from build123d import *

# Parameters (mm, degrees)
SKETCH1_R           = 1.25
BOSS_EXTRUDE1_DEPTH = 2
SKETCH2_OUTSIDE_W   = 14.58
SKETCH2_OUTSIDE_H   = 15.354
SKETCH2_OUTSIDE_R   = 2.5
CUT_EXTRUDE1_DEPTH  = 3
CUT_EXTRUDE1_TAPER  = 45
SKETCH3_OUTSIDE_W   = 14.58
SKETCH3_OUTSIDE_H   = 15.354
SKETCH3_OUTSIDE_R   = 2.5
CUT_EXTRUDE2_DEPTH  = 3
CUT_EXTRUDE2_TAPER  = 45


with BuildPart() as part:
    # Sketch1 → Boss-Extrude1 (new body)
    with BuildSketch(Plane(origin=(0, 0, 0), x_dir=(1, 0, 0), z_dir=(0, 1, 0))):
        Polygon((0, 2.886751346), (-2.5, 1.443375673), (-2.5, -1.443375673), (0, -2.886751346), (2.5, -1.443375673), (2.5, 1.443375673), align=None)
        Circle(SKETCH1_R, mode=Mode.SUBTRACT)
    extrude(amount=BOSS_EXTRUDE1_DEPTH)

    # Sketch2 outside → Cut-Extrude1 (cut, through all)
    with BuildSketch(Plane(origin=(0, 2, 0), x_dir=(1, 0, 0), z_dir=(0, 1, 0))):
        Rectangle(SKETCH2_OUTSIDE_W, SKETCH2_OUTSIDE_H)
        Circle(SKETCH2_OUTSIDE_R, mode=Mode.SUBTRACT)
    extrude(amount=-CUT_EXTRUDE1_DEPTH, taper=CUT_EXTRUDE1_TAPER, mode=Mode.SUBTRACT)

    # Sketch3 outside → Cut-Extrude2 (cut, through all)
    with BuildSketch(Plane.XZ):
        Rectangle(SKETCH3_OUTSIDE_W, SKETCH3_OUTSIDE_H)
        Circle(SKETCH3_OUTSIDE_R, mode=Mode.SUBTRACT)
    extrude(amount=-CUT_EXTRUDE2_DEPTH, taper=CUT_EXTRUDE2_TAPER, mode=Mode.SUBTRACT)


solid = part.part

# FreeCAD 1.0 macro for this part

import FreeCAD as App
import Part
import Sketcher
from FreeCAD import Vector
Q = App.Units.Quantity

doc = App.newDocument("Part")
body = doc.addObject("PartDesign::Body", "Body")

sketch1 = doc.addObject("Sketcher::SketchObject", "Sketch")
body.addObject(sketch1)
sketch1.AttachmentSupport = (doc.XZ_Plane, [""])
sketch1.MapMode = "FlatFace"
sketch1.addGeometry(Part.LineSegment(Vector(0, -2.9, 0), Vector(-2.5, -1.4, 0)), False)
sketch1.addGeometry(Part.LineSegment(Vector(-2.5, -1.4, 0), Vector(-2.5, 1.4, 0)), False)
sketch1.addGeometry(Part.LineSegment(Vector(-2.5, 1.4, 0), Vector(0, 2.9, 0)), False)
sketch1.addGeometry(Part.LineSegment(Vector(0, 2.9, 0), Vector(2.5, 1.4, 0)), False)
sketch1.addGeometry(Part.LineSegment(Vector(2.5, 1.4, 0), Vector(2.5, -1.4, 0)), False)
sketch1.addGeometry(Part.LineSegment(Vector(2.5, -1.4, 0), Vector(0, -2.9, 0)), False)
sketch1.addGeometry(Part.Circle(Vector(0, 0, 0), Vector(0, 0, 1), 1.2), False)
sketch1.addConstraint(Sketcher.Constraint("Coincident", 0, 2, 1, 1))
sketch1.addConstraint(Sketcher.Constraint("Coincident", 1, 2, 2, 1))
sketch1.addConstraint(Sketcher.Constraint("Coincident", 2, 2, 3, 1))
sketch1.addConstraint(Sketcher.Constraint("Coincident", 3, 2, 4, 1))
sketch1.addConstraint(Sketcher.Constraint("Coincident", 4, 2, 5, 1))
sketch1.addConstraint(Sketcher.Constraint("Coincident", 5, 2, 0, 1))
sketch1.addConstraint(Sketcher.Constraint("Vertical", 1))
sketch1.addConstraint(Sketcher.Constraint("Vertical", 4))
sketch1.addConstraint(Sketcher.Constraint("Coincident", 6, 3, -1, 1))
sketch1.addConstraint(Sketcher.Constraint("Symmetric", 0, 2, 3, 2, -1, 1))
sketch1.addConstraint(Sketcher.Constraint("Symmetric", 2, 2, 5, 2, -1, 1))
sketch1.addConstraint(Sketcher.Constraint("PointOnObject", 2, 2, -2))
sketch1.addConstraint(Sketcher.Constraint("Parallel", 2, 5))
sketch1.addConstraint(Sketcher.Constraint("Horizontal", 1, 2, 3, 2))
sketch1.addConstraint(Sketcher.Constraint("Diameter", 6, Q("2.5 mm")))
sketch1.addConstraint(Sketcher.Constraint("Angle", 0, Q("150 deg")))
sketch1.addConstraint(Sketcher.Constraint("DistanceX", 1, 2, 3, 2, Q("5 mm")))
sketch1.addConstraint(Sketcher.Constraint("DistanceY", 1, 1, 1, 2, Q("2.886751 mm")))
pad1 = doc.addObject("PartDesign::Pad", "Pad")
body.addObject(pad1)
pad1.Profile = sketch1
pad1.Length = 2
pad1.Reversed = True

sketch2 = doc.addObject("Sketcher::SketchObject", "Sketch001")
body.addObject(sketch2)
sketch2.AttachmentSupport = (doc.XZ_Plane, [""])
sketch2.MapMode = "FlatFace"
sketch2.AttachmentOffset = App.Placement(Vector(0, 0, -2), App.Rotation())
sketch2.addGeometry(Part.LineSegment(Vector(-7.3, -7.7, 0), Vector(-7.3, 7.7, 0)), False)
sketch2.addGeometry(Part.LineSegment(Vector(-7.3, 7.7, 0), Vector(7.3, 7.7, 0)), False)
sketch2.addGeometry(Part.LineSegment(Vector(7.3, 7.7, 0), Vector(7.3, -7.7, 0)), False)
sketch2.addGeometry(Part.LineSegment(Vector(7.3, -7.7, 0), Vector(-7.3, -7.7, 0)), False)
sketch2.addGeometry(Part.Circle(Vector(0, 0, 0), Vector(0, 0, 1), 2.5), False)
sketch2.addConstraint(Sketcher.Constraint("Coincident", 0, 2, 1, 1))
sketch2.addConstraint(Sketcher.Constraint("Coincident", 1, 2, 2, 1))
sketch2.addConstraint(Sketcher.Constraint("Coincident", 2, 2, 3, 1))
sketch2.addConstraint(Sketcher.Constraint("Coincident", 3, 2, 0, 1))
sketch2.addConstraint(Sketcher.Constraint("Vertical", 0))
sketch2.addConstraint(Sketcher.Constraint("Horizontal", 1))
sketch2.addConstraint(Sketcher.Constraint("Vertical", 2))
sketch2.addConstraint(Sketcher.Constraint("Horizontal", 3))
sketch2.addConstraint(Sketcher.Constraint("Coincident", 4, 3, -1, 1))
sketch2.addConstraint(Sketcher.Constraint("Symmetric", 0, 2, 2, 2, -1, 1))
sketch2.addConstraint(Sketcher.Constraint("Diameter", 4, Q("5 mm")))
sketch2.addConstraint(Sketcher.Constraint("DistanceX", 1, 1, 1, 2, Q("14.58 mm")))
sketch2.addConstraint(Sketcher.Constraint("DistanceY", 0, 1, 0, 2, Q("15.354 mm")))
pocket1 = doc.addObject("PartDesign::Pocket", "Pocket")
body.addObject(pocket1)
pocket1.Profile = sketch2
pocket1.Length = 3
pocket1.Reversed = True
pocket1.TaperAngle = 45

sketch3 = doc.addObject("Sketcher::SketchObject", "Sketch002")
body.addObject(sketch3)
sketch3.AttachmentSupport = (doc.XZ_Plane, [""])
sketch3.MapMode = "FlatFace"
sketch3.addGeometry(Part.LineSegment(Vector(-7.3, 7.7, 0), Vector(-7.3, -7.7, 0)), False)
sketch3.addGeometry(Part.LineSegment(Vector(-7.3, -7.7, 0), Vector(7.3, -7.7, 0)), False)
sketch3.addGeometry(Part.LineSegment(Vector(7.3, -7.7, 0), Vector(7.3, 7.7, 0)), False)
sketch3.addGeometry(Part.LineSegment(Vector(7.3, 7.7, 0), Vector(-7.3, 7.7, 0)), False)
sketch3.addGeometry(Part.Circle(Vector(0, 0, 0), Vector(0, 0, 1), 2.5), False)
sketch3.addConstraint(Sketcher.Constraint("Coincident", 0, 2, 1, 1))
sketch3.addConstraint(Sketcher.Constraint("Coincident", 1, 2, 2, 1))
sketch3.addConstraint(Sketcher.Constraint("Coincident", 2, 2, 3, 1))
sketch3.addConstraint(Sketcher.Constraint("Coincident", 3, 2, 0, 1))
sketch3.addConstraint(Sketcher.Constraint("Vertical", 0))
sketch3.addConstraint(Sketcher.Constraint("Horizontal", 1))
sketch3.addConstraint(Sketcher.Constraint("Vertical", 2))
sketch3.addConstraint(Sketcher.Constraint("Horizontal", 3))
sketch3.addConstraint(Sketcher.Constraint("Coincident", 4, 3, -1, 1))
sketch3.addConstraint(Sketcher.Constraint("Symmetric", 0, 2, 2, 2, -1, 1))
sketch3.addConstraint(Sketcher.Constraint("Diameter", 4, Q("5 mm")))
sketch3.addConstraint(Sketcher.Constraint("DistanceX", 1, 1, 1, 2, Q("14.58 mm")))
sketch3.addConstraint(Sketcher.Constraint("DistanceY", 0, 2, 0, 1, Q("15.354 mm")))
pocket2 = doc.addObject("PartDesign::Pocket", "Pocket001")
body.addObject(pocket2)
pocket2.Profile = sketch3
pocket2.Length = 3
pocket2.TaperAngle = 45

doc.recompute()
